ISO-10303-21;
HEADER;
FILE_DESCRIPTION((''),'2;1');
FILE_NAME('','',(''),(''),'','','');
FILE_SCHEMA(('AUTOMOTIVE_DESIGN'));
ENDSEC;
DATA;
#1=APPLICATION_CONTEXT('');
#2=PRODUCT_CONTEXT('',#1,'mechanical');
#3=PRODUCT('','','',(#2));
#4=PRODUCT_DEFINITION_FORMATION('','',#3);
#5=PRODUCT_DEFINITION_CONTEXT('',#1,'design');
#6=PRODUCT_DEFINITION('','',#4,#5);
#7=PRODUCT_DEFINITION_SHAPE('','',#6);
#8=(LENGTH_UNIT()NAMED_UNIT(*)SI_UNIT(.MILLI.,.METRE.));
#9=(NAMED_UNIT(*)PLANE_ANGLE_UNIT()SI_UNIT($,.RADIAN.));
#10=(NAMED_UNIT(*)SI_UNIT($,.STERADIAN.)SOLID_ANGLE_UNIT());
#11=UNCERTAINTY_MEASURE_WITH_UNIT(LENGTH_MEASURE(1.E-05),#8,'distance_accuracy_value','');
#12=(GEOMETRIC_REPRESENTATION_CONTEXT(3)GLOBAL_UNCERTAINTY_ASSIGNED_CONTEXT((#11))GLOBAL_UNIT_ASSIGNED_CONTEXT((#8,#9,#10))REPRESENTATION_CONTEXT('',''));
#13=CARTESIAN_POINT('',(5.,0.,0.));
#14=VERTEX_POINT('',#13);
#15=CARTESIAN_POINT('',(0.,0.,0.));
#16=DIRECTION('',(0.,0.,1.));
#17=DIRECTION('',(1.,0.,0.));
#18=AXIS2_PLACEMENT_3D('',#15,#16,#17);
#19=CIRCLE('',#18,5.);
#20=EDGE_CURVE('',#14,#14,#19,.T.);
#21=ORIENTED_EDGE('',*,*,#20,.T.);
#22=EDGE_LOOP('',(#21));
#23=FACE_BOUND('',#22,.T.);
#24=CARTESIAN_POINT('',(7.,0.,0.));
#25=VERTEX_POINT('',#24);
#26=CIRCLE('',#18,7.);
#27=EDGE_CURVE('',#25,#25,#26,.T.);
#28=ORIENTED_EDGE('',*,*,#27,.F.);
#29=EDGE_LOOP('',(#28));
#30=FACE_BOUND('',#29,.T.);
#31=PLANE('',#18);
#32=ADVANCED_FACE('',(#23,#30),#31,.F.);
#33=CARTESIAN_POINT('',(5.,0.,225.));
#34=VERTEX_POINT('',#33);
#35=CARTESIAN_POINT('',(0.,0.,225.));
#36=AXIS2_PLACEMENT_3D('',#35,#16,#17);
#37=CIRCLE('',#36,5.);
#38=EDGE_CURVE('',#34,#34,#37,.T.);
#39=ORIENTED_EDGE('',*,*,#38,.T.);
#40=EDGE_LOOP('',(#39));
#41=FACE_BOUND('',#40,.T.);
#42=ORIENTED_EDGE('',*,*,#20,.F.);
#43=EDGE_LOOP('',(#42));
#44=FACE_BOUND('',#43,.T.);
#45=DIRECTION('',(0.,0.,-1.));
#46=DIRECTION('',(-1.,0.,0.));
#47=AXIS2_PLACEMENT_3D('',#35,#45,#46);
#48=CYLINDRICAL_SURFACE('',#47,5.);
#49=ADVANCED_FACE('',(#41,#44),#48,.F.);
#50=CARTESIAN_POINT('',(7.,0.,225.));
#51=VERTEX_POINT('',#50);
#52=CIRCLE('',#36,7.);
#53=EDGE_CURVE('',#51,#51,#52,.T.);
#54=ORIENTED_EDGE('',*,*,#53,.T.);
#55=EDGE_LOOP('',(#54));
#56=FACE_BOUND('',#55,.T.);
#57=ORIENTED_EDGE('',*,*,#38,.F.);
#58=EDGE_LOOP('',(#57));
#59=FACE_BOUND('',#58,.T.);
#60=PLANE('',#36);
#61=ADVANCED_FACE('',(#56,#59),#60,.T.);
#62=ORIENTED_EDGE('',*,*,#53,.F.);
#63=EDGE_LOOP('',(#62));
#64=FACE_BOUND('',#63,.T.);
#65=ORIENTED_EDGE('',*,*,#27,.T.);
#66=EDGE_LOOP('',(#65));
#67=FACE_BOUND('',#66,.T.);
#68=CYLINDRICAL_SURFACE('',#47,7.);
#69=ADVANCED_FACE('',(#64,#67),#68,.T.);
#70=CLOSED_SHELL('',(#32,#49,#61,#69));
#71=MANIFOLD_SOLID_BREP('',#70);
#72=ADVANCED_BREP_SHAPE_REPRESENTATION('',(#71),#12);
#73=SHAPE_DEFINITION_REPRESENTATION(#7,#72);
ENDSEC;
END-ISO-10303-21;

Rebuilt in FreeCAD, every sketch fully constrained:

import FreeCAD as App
import Part
import Sketcher
from FreeCAD import Vector

doc = App.newDocument("Part")
body = doc.addObject("PartDesign::Body", "Body")

sketch1 = doc.addObject("Sketcher::SketchObject", "Sketch")
body.addObject(sketch1)
sketch1.AttachmentSupport = (doc.XY_Plane, [""])
sketch1.MapMode = "FlatFace"
sketch1.addGeometry([
    Part.Circle(Vector(0, 0, 0), Vector(0, 0, 1), 7),
    Part.Circle(Vector(0, 0, 0), Vector(0, 0, 1), 5),
], False)
sketch1.addConstraint([
    Sketcher.Constraint("Coincident", 0, 3, -1, 1),
    Sketcher.Constraint("Coincident", 1, 3, -1, 1),
    Sketcher.Constraint("Diameter", 0, 14.0),
    Sketcher.Constraint("Diameter", 1, 10.0),
])
pad1 = doc.addObject("PartDesign::Pad", "Pad")
body.addObject(pad1)
pad1.Profile = sketch1
pad1.Length = 225

doc.recompute()
